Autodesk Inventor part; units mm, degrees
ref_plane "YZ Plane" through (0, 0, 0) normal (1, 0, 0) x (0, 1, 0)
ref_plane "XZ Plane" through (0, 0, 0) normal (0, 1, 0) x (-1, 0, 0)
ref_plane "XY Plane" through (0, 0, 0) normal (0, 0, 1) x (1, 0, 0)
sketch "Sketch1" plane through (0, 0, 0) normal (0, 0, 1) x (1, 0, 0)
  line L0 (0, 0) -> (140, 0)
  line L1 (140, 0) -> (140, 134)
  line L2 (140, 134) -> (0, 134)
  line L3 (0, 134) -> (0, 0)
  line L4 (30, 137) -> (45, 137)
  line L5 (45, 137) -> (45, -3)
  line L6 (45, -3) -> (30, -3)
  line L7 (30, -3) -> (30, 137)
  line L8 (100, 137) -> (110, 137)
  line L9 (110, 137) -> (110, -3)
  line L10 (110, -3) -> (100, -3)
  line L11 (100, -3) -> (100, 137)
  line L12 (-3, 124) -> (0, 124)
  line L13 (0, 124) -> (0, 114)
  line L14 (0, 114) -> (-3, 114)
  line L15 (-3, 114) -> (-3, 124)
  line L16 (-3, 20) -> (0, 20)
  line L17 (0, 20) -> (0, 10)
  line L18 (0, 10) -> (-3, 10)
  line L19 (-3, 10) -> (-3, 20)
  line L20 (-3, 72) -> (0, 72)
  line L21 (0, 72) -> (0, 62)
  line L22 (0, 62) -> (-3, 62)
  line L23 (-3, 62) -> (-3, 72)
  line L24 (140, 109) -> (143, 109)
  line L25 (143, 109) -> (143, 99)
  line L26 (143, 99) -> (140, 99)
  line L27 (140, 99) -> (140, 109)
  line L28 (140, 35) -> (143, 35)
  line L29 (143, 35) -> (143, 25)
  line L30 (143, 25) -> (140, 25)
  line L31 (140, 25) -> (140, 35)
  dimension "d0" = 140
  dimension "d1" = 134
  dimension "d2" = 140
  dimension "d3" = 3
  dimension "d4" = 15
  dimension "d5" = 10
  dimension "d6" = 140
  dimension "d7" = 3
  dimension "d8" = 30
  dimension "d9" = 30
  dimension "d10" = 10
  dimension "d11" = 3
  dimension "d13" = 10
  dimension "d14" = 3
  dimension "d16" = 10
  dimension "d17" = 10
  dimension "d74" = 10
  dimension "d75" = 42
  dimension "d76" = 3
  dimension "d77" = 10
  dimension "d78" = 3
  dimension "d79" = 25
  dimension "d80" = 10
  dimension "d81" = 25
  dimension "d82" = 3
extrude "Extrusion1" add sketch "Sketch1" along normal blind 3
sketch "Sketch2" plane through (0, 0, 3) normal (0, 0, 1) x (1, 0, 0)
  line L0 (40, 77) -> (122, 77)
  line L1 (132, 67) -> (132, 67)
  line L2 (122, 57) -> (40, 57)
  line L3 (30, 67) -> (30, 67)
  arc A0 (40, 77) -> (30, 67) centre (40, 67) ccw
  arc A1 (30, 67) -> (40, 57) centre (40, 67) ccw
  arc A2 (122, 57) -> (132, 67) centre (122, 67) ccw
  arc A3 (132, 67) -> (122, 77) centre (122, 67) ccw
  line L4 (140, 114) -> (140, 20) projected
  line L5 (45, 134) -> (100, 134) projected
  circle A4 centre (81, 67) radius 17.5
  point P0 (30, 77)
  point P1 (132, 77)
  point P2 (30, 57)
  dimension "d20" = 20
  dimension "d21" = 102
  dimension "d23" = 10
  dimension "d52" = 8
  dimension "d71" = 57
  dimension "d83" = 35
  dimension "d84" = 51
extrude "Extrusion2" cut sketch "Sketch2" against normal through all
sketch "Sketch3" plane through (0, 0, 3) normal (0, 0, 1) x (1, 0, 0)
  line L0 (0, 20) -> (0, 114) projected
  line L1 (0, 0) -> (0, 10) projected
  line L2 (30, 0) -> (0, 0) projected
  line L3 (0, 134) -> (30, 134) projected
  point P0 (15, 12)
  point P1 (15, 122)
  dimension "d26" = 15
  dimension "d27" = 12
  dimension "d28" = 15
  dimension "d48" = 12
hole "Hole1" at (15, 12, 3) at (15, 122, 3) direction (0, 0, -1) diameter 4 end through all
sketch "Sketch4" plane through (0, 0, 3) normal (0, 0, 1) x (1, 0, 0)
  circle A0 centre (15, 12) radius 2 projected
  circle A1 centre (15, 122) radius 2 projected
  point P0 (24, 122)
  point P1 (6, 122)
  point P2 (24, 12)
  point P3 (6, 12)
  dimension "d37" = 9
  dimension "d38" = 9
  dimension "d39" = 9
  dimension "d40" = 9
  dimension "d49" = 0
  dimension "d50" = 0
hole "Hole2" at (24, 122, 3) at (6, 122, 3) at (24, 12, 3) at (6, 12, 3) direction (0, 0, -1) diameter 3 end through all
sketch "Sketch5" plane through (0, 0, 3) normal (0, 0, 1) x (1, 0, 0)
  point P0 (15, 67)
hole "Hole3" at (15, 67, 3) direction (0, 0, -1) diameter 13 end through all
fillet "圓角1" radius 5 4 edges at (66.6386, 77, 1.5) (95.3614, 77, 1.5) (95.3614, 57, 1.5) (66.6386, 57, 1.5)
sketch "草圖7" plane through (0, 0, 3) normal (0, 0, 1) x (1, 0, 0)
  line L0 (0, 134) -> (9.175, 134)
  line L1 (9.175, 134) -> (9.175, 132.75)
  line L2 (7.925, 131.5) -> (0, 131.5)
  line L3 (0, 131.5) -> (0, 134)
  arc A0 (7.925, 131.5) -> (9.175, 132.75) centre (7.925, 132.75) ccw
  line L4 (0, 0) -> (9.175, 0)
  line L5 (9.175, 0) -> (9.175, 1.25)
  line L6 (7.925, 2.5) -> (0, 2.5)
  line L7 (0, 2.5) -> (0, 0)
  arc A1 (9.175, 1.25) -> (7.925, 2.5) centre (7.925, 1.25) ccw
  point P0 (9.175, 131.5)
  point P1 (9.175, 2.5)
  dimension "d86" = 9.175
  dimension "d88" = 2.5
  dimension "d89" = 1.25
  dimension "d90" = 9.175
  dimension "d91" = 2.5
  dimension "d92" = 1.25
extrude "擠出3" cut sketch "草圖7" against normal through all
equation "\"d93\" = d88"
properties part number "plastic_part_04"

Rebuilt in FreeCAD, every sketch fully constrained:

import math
import FreeCAD as App
import Part
import Sketcher
from FreeCAD import Vector


def edges_at(feature, points):
    """Names of the edges that pass closest to the given points."""
    edges = feature.Shape.Edges
    near = lambda p: min(range(len(edges)), key=lambda i: edges[i].distToShape(Part.Vertex(*p))[0])
    return sorted({f"Edge{near(p) + 1}" for p in points})

doc = App.newDocument("Part")
body = doc.addObject("PartDesign::Body", "Body")

# Sketch on XY plane
sketch1 = body.newObject("Sketcher::SketchObject", "Sketch")
sketch1.AttachmentSupport = (doc.getObject("XY_Plane"), [""])
sketch1.MapMode = "FlatFace"
sketch1.addGeometry([
    Part.LineSegment(Vector(0, 10, 0), Vector(0, 0, 0)),  # 0
    Part.LineSegment(Vector(0, 0, 0), Vector(30, 0, 0)),  # 1
    Part.LineSegment(Vector(30, 0, 0), Vector(30, -3, 0)),  # 2
    Part.LineSegment(Vector(30, -3, 0), Vector(45, -3, 0)),  # 3
    Part.LineSegment(Vector(45, -3, 0), Vector(45, 0, 0)),  # 4
    Part.LineSegment(Vector(45, 0, 0), Vector(100, 0, 0)),  # 5
    Part.LineSegment(Vector(100, 0, 0), Vector(100, -3, 0)),  # 6
    Part.LineSegment(Vector(100, -3, 0), Vector(110, -3, 0)),  # 7
    Part.LineSegment(Vector(110, -3, 0), Vector(110, 0, 0)),  # 8
    Part.LineSegment(Vector(110, 0, 0), Vector(140, 0, 0)),  # 9
    Part.LineSegment(Vector(140, 0, 0), Vector(140, 25, 0)),  # 10
    Part.LineSegment(Vector(140, 25, 0), Vector(143, 25, 0)),  # 11
    Part.LineSegment(Vector(143, 25, 0), Vector(143, 35, 0)),  # 12
    Part.LineSegment(Vector(143, 35, 0), Vector(140, 35, 0)),  # 13
    Part.LineSegment(Vector(140, 35, 0), Vector(140, 99, 0)),  # 14
    Part.LineSegment(Vector(140, 99, 0), Vector(143, 99, 0)),  # 15
    Part.LineSegment(Vector(143, 99, 0), Vector(143, 109, 0)),  # 16
    Part.LineSegment(Vector(143, 109, 0), Vector(140, 109, 0)),  # 17
    Part.LineSegment(Vector(140, 109, 0), Vector(140, 134, 0)),  # 18
    Part.LineSegment(Vector(140, 134, 0), Vector(110, 134, 0)),  # 19
    Part.LineSegment(Vector(110, 134, 0), Vector(110, 137, 0)),  # 20
    Part.LineSegment(Vector(110, 137, 0), Vector(100, 137, 0)),  # 21
    Part.LineSegment(Vector(100, 137, 0), Vector(100, 134, 0)),  # 22
    Part.LineSegment(Vector(100, 134, 0), Vector(45, 134, 0)),  # 23
    Part.LineSegment(Vector(45, 134, 0), Vector(45, 137, 0)),  # 24
    Part.LineSegment(Vector(45, 137, 0), Vector(30, 137, 0)),  # 25
    Part.LineSegment(Vector(30, 137, 0), Vector(30, 134, 0)),  # 26
    Part.LineSegment(Vector(30, 134, 0), Vector(0, 134, 0)),  # 27
    Part.LineSegment(Vector(0, 134, 0), Vector(0, 124, 0)),  # 28
    Part.LineSegment(Vector(0, 124, 0), Vector(-3, 124, 0)),  # 29
    Part.LineSegment(Vector(-3, 124, 0), Vector(-3, 114, 0)),  # 30
    Part.LineSegment(Vector(-3, 114, 0), Vector(0, 114, 0)),  # 31
    Part.LineSegment(Vector(0, 114, 0), Vector(0, 72, 0)),  # 32
    Part.LineSegment(Vector(0, 72, 0), Vector(-3, 72, 0)),  # 33
    Part.LineSegment(Vector(-3, 72, 0), Vector(-3, 62, 0)),  # 34
    Part.LineSegment(Vector(-3, 62, 0), Vector(0, 62, 0)),  # 35
    Part.LineSegment(Vector(0, 62, 0), Vector(0, 20, 0)),  # 36
    Part.LineSegment(Vector(0, 20, 0), Vector(-3, 20, 0)),  # 37
    Part.LineSegment(Vector(-3, 20, 0), Vector(-3, 10, 0)),  # 38
    Part.LineSegment(Vector(-3, 10, 0), Vector(0, 10, 0)),  # 39
], False)
sketch1.addConstraint([
    Sketcher.Constraint("Coincident", 0, 2, 1, 1),
    Sketcher.Constraint("Coincident", 1, 2, 2, 1),
    Sketcher.Constraint("Coincident", 2, 2, 3, 1),
    Sketcher.Constraint("Coincident", 3, 2, 4, 1),
    Sketcher.Constraint("Coincident", 4, 2, 5, 1),
    Sketcher.Constraint("Coincident", 5, 2, 6, 1),
    Sketcher.Constraint("Coincident", 6, 2, 7, 1),
    Sketcher.Constraint("Coincident", 7, 2, 8, 1),
    Sketcher.Constraint("Coincident", 8, 2, 9, 1),
    Sketcher.Constraint("Coincident", 9, 2, 10, 1),
    Sketcher.Constraint("Coincident", 10, 2, 11, 1),
    Sketcher.Constraint("Coincident", 11, 2, 12, 1),
    Sketcher.Constraint("Coincident", 12, 2, 13, 1),
    Sketcher.Constraint("Coincident", 13, 2, 14, 1),
    Sketcher.Constraint("Coincident", 14, 2, 15, 1),
    Sketcher.Constraint("Coincident", 15, 2, 16, 1),
    Sketcher.Constraint("Coincident", 16, 2, 17, 1),
    Sketcher.Constraint("Coincident", 17, 2, 18, 1),
    Sketcher.Constraint("Coincident", 18, 2, 19, 1),
    Sketcher.Constraint("Coincident", 19, 2, 20, 1),
    Sketcher.Constraint("Coincident", 20, 2, 21, 1),
    Sketcher.Constraint("Coincident", 21, 2, 22, 1),
    Sketcher.Constraint("Coincident", 22, 2, 23, 1),
    Sketcher.Constraint("Coincident", 23, 2, 24, 1),
    Sketcher.Constraint("Coincident", 24, 2, 25, 1),
    Sketcher.Constraint("Coincident", 25, 2, 26, 1),
    Sketcher.Constraint("Coincident", 26, 2, 27, 1),
    Sketcher.Constraint("Coincident", 27, 2, 28, 1),
    Sketcher.Constraint("Coincident", 28, 2, 29, 1),
    Sketcher.Constraint("Coincident", 29, 2, 30, 1),
    Sketcher.Constraint("Coincident", 30, 2, 31, 1),
    Sketcher.Constraint("Coincident", 31, 2, 32, 1),
    Sketcher.Constraint("Coincident", 32, 2, 33, 1),
    Sketcher.Constraint("Coincident", 33, 2, 34, 1),
    Sketcher.Constraint("Coincident", 34, 2, 35, 1),
    Sketcher.Constraint("Coincident", 35, 2, 36, 1),
    Sketcher.Constraint("Coincident", 36, 2, 37, 1),
    Sketcher.Constraint("Coincident", 37, 2, 38, 1),
    Sketcher.Constraint("Coincident", 38, 2, 39, 1),
    Sketcher.Constraint("Coincident", 39, 2, 0, 1),
    Sketcher.Constraint("Vertical", 0),
    Sketcher.Constraint("Horizontal", 1),
    Sketcher.Constraint("Vertical", 2),
    Sketcher.Constraint("Horizontal", 3),
    Sketcher.Constraint("Vertical", 4),
    Sketcher.Constraint("Horizontal", 5),
    Sketcher.Constraint("Vertical", 6),
    Sketcher.Constraint("Horizontal", 7),
    Sketcher.Constraint("Vertical", 8),
    Sketcher.Constraint("Horizontal", 9),
    Sketcher.Constraint("Vertical", 10),
    Sketcher.Constraint("Horizontal", 11),
    Sketcher.Constraint("Vertical", 12),
    Sketcher.Constraint("Horizontal", 13),
    Sketcher.Constraint("Vertical", 14),
    Sketcher.Constraint("Horizontal", 15),
    Sketcher.Constraint("Vertical", 16),
    Sketcher.Constraint("Horizontal", 17),
    Sketcher.Constraint("Vertical", 18),
    Sketcher.Constraint("Horizontal", 19),
    Sketcher.Constraint("Vertical", 20),
    Sketcher.Constraint("Horizontal", 21),
    Sketcher.Constraint("Vertical", 22),
    Sketcher.Constraint("Horizontal", 23),
    Sketcher.Constraint("Vertical", 24),
    Sketcher.Constraint("Horizontal", 25),
    Sketcher.Constraint("Vertical", 26),
    Sketcher.Constraint("Horizontal", 27),
    Sketcher.Constraint("Vertical", 28),
    Sketcher.Constraint("Horizontal", 29),
    Sketcher.Constraint("Vertical", 30),
    Sketcher.Constraint("Horizontal", 31),
    Sketcher.Constraint("Vertical", 32),
    Sketcher.Constraint("Horizontal", 33),
    Sketcher.Constraint("Vertical", 34),
    Sketcher.Constraint("Horizontal", 35),
    Sketcher.Constraint("Vertical", 36),
    Sketcher.Constraint("Horizontal", 37),
    Sketcher.Constraint("Vertical", 38),
    Sketcher.Constraint("Horizontal", 39),
    Sketcher.Constraint("Coincident", 0, 2, -1, 1),
    Sketcher.Constraint("PointOnObject", 4, 2, -1),
    Sketcher.Constraint("PointOnObject", 8, 2, -1),
    Sketcher.Constraint("PointOnObject", 27, 2, -2),
    Sketcher.Constraint("PointOnObject", 31, 2, -2),
    Sketcher.Constraint("PointOnObject", 35, 2, -2),
    Sketcher.Constraint("Horizontal", 3, 2, 6, 2),
    Sketcher.Constraint("Horizontal", 19, 2, 22, 2),
    Sketcher.Constraint("Horizontal", 21, 2, 24, 2),
    Sketcher.Constraint("Horizontal", 23, 2, 26, 2),
    Sketcher.Constraint("Vertical", 10, 2, 13, 2),
    Sketcher.Constraint("Vertical", 12, 2, 15, 2),
    Sketcher.Constraint("Vertical", 14, 2, 17, 2),
    Sketcher.Constraint("Vertical", 8, 2, 19, 2),
    Sketcher.Constraint("Vertical", 6, 2, 21, 2),
    Sketcher.Constraint("Vertical", 4, 2, 23, 2),
    Sketcher.Constraint("Vertical", 2, 2, 25, 2),
    Sketcher.Constraint("Vertical", 30, 2, 33, 2),
    Sketcher.Constraint("Vertical", 34, 2, 37, 2),
    Sketcher.Constraint("Equal", 1, 9),
    Sketcher.Constraint("Equal", 17, 29),
    Sketcher.Constraint("Equal", 21, 0),
    Sketcher.Constraint("Equal", 39, 2),
    Sketcher.Constraint("Equal", 0, 12),
    Sketcher.Constraint("Equal", 12, 16),
    Sketcher.Constraint("Equal", 10, 18),
    Sketcher.Constraint("Equal", 8, 20),
    Sketcher.Constraint("Equal", 16, 28),
    Sketcher.Constraint("Equal", 28, 30),
    Sketcher.Constraint("Equal", 30, 34),
    Sketcher.Constraint("Equal", 32, 36),
    Sketcher.Constraint("Equal", 34, 38),
    Sketcher.Constraint("DistanceX", 1, 1, 1, 2, 30.0),
    Sketcher.Constraint("DistanceX", 3, 1, 3, 2, 15.0),
    Sketcher.Constraint("DistanceX", 7, 1, 7, 2, 10.0),
    Sketcher.Constraint("DistanceX", 11, 1, 11, 2, 3.0),
    Sketcher.Constraint("DistanceY", 10, 1, 10, 2, 25.0),
    Sketcher.Constraint("DistanceY", 32, 2, 32, 1, 42.0),
    Sketcher.Constraint("DistanceX", -1, 1, 9, 2, 140.0),
])
pad1 = body.newObject("PartDesign::Pad", "Pad")
pad1.Profile = sketch1
pad1.Length = 3

# Sketch on XY plane
sketch2 = body.newObject("Sketcher::SketchObject", "Sketch001")
sketch2.AttachmentSupport = (doc.getObject("XY_Plane"), [""])
sketch2.MapMode = "FlatFace"
sketch2.AttachmentOffset = App.Placement(Vector(0, 0, 3), App.Rotation())
sketch2.addGeometry([
    Part.LineSegment(Vector(67, 77, 0), Vector(40, 77, 0)),  # 0
    Part.ArcOfCircle(Part.Circle(Vector(40, 67, 0), Vector(0, 0, 1), 10), math.radians(90), math.radians(270)),  # 1
    Part.LineSegment(Vector(40, 57, 0), Vector(67, 57, 0)),  # 2
    Part.ArcOfCircle(Part.Circle(Vector(81, 67, 0), Vector(0, 0, 1), 18), math.radians(-145), math.radians(-35)),  # 3
    Part.LineSegment(Vector(95, 57, 0), Vector(122, 57, 0)),  # 4
    Part.ArcOfCircle(Part.Circle(Vector(122, 67, 0), Vector(0, 0, 1), 10), math.radians(-90), math.radians(90)),  # 5
    Part.LineSegment(Vector(122, 77, 0), Vector(95, 77, 0)),  # 6
    Part.ArcOfCircle(Part.Circle(Vector(81, 67, 0), Vector(0, 0, 1), 18), math.radians(35), math.radians(145)),  # 7
], False)
sketch2.addConstraint([
    Sketcher.Constraint("Tangent", 0, 2, 1, 1),
    Sketcher.Constraint("Tangent", 1, 2, 2, 1),
    Sketcher.Constraint("Coincident", 2, 2, 3, 1),
    Sketcher.Constraint("Coincident", 3, 2, 4, 1),
    Sketcher.Constraint("Tangent", 4, 2, 5, 1),
    Sketcher.Constraint("Tangent", 5, 2, 6, 1),
    Sketcher.Constraint("Coincident", 6, 2, 7, 1),
    Sketcher.Constraint("Coincident", 7, 2, 0, 1),
    Sketcher.Constraint("Horizontal", 0),
    Sketcher.Constraint("Horizontal", 2),
    Sketcher.Constraint("Horizontal", 4),
    Sketcher.Constraint("Horizontal", 6),
    Sketcher.Constraint("Coincident", 7, 3, 3, 3),
    Sketcher.Constraint("Equal", 1, 5),
    Sketcher.Constraint("Equal", 3, 7),
    Sketcher.Constraint("Horizontal", 1, 3, 3, 3),
    Sketcher.Constraint("Horizontal", 3, 3, 5, 3),
    Sketcher.Constraint("Equal", 2, 4),
    Sketcher.Constraint("Radius", 1, 10.0),
    Sketcher.Constraint("Radius", 3, 17.5),
    Sketcher.Constraint("DistanceY", -1, 1, 1, 2, 57.0),
    Sketcher.Constraint("DistanceX", -1, 1, 1, 3, 40.0),
    Sketcher.Constraint("DistanceX", -1, 1, 3, 3, 81.0),
])
pocket1 = body.newObject("PartDesign::Pocket", "Pocket")
pocket1.Profile = sketch2
pocket1.Type = "ThroughAll"

# Sketch on XY plane
sketch3 = body.newObject("Sketcher::SketchObject", "Sketch002")
sketch3.AttachmentSupport = (doc.getObject("XY_Plane"), [""])
sketch3.MapMode = "FlatFace"
sketch3.AttachmentOffset = App.Placement(Vector(0, 0, 3), App.Rotation())
sketch3.addGeometry([
    Part.Circle(Vector(15, 12, 0), Vector(0, 0, 1), 2),
    Part.Circle(Vector(15, 122, 0), Vector(0, 0, 1), 2),
], False)
sketch3.addConstraint([
    Sketcher.Constraint("Equal", 0, 1),
    Sketcher.Constraint("Vertical", 0, 3, 1, 3),
    Sketcher.Constraint("Diameter", 0, 4.0),
    Sketcher.Constraint("DistanceX", -1, 1, 0, 3, 15.0),
    Sketcher.Constraint("DistanceY", -1, 1, 0, 3, 12.0),
    Sketcher.Constraint("DistanceY", -1, 1, 1, 3, 122.0),
])
doc.recompute()
hole = body.newObject("PartDesign::Hole", "Hole")
hole.Profile = sketch3
hole.ThreadType = "None"
hole.Diameter = 4
hole.DepthType = "ThroughAll"

# Sketch on XY plane
sketch4 = body.newObject("Sketcher::SketchObject", "Sketch003")
sketch4.AttachmentSupport = (doc.getObject("XY_Plane"), [""])
sketch4.MapMode = "FlatFace"
sketch4.AttachmentOffset = App.Placement(Vector(0, 0, 3), App.Rotation())
sketch4.addGeometry([
    Part.Circle(Vector(24, 122, 0), Vector(0, 0, 1), 1.5),
    Part.Circle(Vector(6, 122, 0), Vector(0, 0, 1), 1.5),
    Part.Circle(Vector(24, 12, 0), Vector(0, 0, 1), 1.5),
    Part.Circle(Vector(6, 12, 0), Vector(0, 0, 1), 1.5),
], False)
sketch4.addConstraint([
    Sketcher.Constraint("Equal", 0, 1),
    Sketcher.Constraint("Equal", 1, 2),
    Sketcher.Constraint("Equal", 2, 3),
    Sketcher.Constraint("Horizontal", 0, 3, 1, 3),
    Sketcher.Constraint("Horizontal", 2, 3, 3, 3),
    Sketcher.Constraint("Vertical", 0, 3, 2, 3),
    Sketcher.Constraint("Vertical", 1, 3, 3, 3),
    Sketcher.Constraint("Diameter", 0, 3.0),
    Sketcher.Constraint("DistanceX", -1, 1, 0, 3, 24.0),
    Sketcher.Constraint("DistanceY", -1, 1, 0, 3, 122.0),
    Sketcher.Constraint("DistanceX", -1, 1, 1, 3, 6.0),
    Sketcher.Constraint("DistanceY", -1, 1, 2, 3, 12.0),
])
doc.recompute()
hole2 = body.newObject("PartDesign::Hole", "Hole001")
hole2.Profile = sketch4
hole2.ThreadType = "None"
hole2.Diameter = 3
hole2.DepthType = "ThroughAll"

# Sketch on XY plane
sketch5 = body.newObject("Sketcher::SketchObject", "Sketch004")
sketch5.AttachmentSupport = (doc.getObject("XY_Plane"), [""])
sketch5.MapMode = "FlatFace"
sketch5.AttachmentOffset = App.Placement(Vector(0, 0, 3), App.Rotation())
sketch5.addGeometry(Part.Circle(Vector(15, 67, 0), Vector(0, 0, 1), 6), False)
sketch5.addConstraint([
    Sketcher.Constraint("Diameter", 0, 13.0),
    Sketcher.Constraint("DistanceX", -1, 1, 0, 3, 15.0),
    Sketcher.Constraint("DistanceY", -1, 1, 0, 3, 67.0),
])
doc.recompute()
hole3 = body.newObject("PartDesign::Hole", "Hole002")
hole3.Profile = sketch5
hole3.ThreadType = "None"
hole3.Diameter = 13
hole3.DepthType = "ThroughAll"
doc.recompute()

fillet = body.newObject("PartDesign::Fillet", "Fillet")
fillet.Base = (hole3, edges_at(hole3, [
    (66.639, 77, 1.5),
    (95.361, 77, 1.5),
    (95.361, 57, 1.5),
    (66.639, 57, 1.5),
]))
fillet.Radius = 5

# Sketch on XY plane
sketch6 = body.newObject("Sketcher::SketchObject", "Sketch005")
sketch6.AttachmentSupport = (doc.getObject("XY_Plane"), [""])
sketch6.MapMode = "FlatFace"
sketch6.AttachmentOffset = App.Placement(Vector(0, 0, 3), App.Rotation())
sketch6.addGeometry([
    Part.LineSegment(Vector(9.2, 134, 0), Vector(0, 134, 0)),  # 0
    Part.LineSegment(Vector(0, 134, 0), Vector(0, 131.5, 0)),  # 1
    Part.LineSegment(Vector(0, 131.5, 0), Vector(7.9, 131.5, 0)),  # 2
    Part.ArcOfCircle(Part.Circle(Vector(7.9, 132.8, 0), Vector(0, 0, 1), 1.2), math.radians(-90), math.radians(0)),  # 3
    Part.LineSegment(Vector(9.2, 132.8, 0), Vector(9.2, 134, 0)),  # 4
    Part.LineSegment(Vector(0, 2.5, 0), Vector(0, 0, 0)),  # 5
    Part.LineSegment(Vector(0, 0, 0), Vector(9.2, 0, 0)),  # 6
    Part.LineSegment(Vector(9.2, 0, 0), Vector(9.2, 1.2, 0)),  # 7
    Part.ArcOfCircle(Part.Circle(Vector(7.9, 1.2, 0), Vector(0, 0, 1), 1.3), math.radians(0), math.radians(90)),  # 8
    Part.LineSegment(Vector(7.9, 2.5, 0), Vector(0, 2.5, 0)),  # 9
], False)
sketch6.addConstraint([
    Sketcher.Constraint("Coincident", 0, 2, 1, 1),
    Sketcher.Constraint("Coincident", 1, 2, 2, 1),
    Sketcher.Constraint("Tangent", 2, 2, 3, 1),
    Sketcher.Constraint("Tangent", 3, 2, 4, 1),
    Sketcher.Constraint("Coincident", 4, 2, 0, 1),
    Sketcher.Constraint("Coincident", 5, 2, 6, 1),
    Sketcher.Constraint("Coincident", 6, 2, 7, 1),
    Sketcher.Constraint("Tangent", 7, 2, 8, 1),
    Sketcher.Constraint("Tangent", 8, 2, 9, 1),
    Sketcher.Constraint("Coincident", 9, 2, 5, 1),
    Sketcher.Constraint("Horizontal", 0),
    Sketcher.Constraint("Vertical", 1),
    Sketcher.Constraint("Horizontal", 2),
    Sketcher.Constraint("Vertical", 4),
    Sketcher.Constraint("Vertical", 5),
    Sketcher.Constraint("Horizontal", 6),
    Sketcher.Constraint("Vertical", 7),
    Sketcher.Constraint("Horizontal", 9),
    Sketcher.Constraint("Coincident", 5, 2, -1, 1),
    Sketcher.Constraint("Equal", 3, 8),
    Sketcher.Constraint("PointOnObject", 0, 2, -2),
    Sketcher.Constraint("Vertical", 3, 3, 8, 3),
    Sketcher.Constraint("Equal", 1, 5),
    Sketcher.Constraint("Radius", 3, 1.25),
    Sketcher.Constraint("DistanceY", 1, 2, 1, 1, 2.5),
    Sketcher.Constraint("DistanceX", 0, 2, 0, 1, 9.175),
    Sketcher.Constraint("DistanceY", -1, 1, 0, 2, 134.0),
])
pocket2 = body.newObject("PartDesign::Pocket", "Pocket001")
pocket2.Profile = sketch6
pocket2.Type = "ThroughAll"

doc.recompute()
